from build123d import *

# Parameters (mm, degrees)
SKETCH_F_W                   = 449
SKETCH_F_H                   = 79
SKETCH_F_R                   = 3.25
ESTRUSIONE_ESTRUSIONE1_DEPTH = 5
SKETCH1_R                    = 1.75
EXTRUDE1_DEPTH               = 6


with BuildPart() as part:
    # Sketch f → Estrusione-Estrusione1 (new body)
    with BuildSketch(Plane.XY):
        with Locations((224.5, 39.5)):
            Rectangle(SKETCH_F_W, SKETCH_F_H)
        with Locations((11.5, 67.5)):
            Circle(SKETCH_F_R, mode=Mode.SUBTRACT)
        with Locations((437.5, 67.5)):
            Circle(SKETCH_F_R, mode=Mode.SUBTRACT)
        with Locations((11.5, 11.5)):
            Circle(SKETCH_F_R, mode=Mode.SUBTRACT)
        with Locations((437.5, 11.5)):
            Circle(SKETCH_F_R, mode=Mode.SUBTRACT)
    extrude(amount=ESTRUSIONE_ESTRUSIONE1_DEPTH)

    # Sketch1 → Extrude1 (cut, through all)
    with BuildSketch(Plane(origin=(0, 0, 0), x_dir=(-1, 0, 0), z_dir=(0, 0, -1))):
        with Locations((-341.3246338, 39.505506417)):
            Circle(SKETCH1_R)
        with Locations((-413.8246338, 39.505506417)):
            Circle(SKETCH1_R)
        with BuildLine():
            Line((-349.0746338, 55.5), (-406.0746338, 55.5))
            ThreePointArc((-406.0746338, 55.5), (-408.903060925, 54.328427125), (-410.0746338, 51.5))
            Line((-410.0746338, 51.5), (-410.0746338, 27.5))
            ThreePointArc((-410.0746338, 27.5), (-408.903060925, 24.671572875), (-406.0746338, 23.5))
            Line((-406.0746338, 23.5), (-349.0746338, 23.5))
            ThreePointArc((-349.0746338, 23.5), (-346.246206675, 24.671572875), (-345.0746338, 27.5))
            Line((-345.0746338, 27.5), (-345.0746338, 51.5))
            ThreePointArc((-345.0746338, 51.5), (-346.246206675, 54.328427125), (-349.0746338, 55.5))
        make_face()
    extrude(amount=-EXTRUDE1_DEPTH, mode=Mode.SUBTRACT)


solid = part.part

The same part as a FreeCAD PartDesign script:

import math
import FreeCAD as App
import Part
import Sketcher
Q = App.Units.Quantity

doc = App.newDocument("Part")
body = doc.addObject("PartDesign::Body", "Body")

sketch1 = body.newObject("Sketcher::SketchObject", "Sketch")
sketch1.AttachmentSupport = (doc.getObject("XY_Plane"), [""])
sketch1.MapMode = "FlatFace"
sketch1.addGeometry([
    Part.LineSegment(App.Vector(0, 79, 0), App.Vector(0, 0, 0)),
    Part.LineSegment(App.Vector(0, 0, 0), App.Vector(449, 0, 0)),
    Part.LineSegment(App.Vector(449, 0, 0), App.Vector(449, 79, 0)),
    Part.LineSegment(App.Vector(449, 79, 0), App.Vector(0, 79, 0)),
    Part.Circle(App.Vector(11.5, 11.5, 0), App.Vector(0, 0, 1), 3.2),
    Part.Circle(App.Vector(437.5, 11.5, 0), App.Vector(0, 0, 1), 3.2),
    Part.Circle(App.Vector(11.5, 67.5, 0), App.Vector(0, 0, 1), 3.2),
    Part.Circle(App.Vector(437.5, 67.5, 0), App.Vector(0, 0, 1), 3.2),
], False)
sketch1.addConstraint([
    Sketcher.Constraint("Coincident", 0, 2, 1, 1),
    Sketcher.Constraint("Coincident", 1, 2, 2, 1),
    Sketcher.Constraint("Coincident", 2, 2, 3, 1),
    Sketcher.Constraint("Coincident", 3, 2, 0, 1),
    Sketcher.Constraint("Vertical", 0),
    Sketcher.Constraint("Horizontal", 1),
    Sketcher.Constraint("Vertical", 2),
    Sketcher.Constraint("Horizontal", 3),
    Sketcher.Constraint("Coincident", 0, 2, -1, 1),
    Sketcher.Constraint("Equal", 4, 5),
    Sketcher.Constraint("Equal", 5, 6),
    Sketcher.Constraint("Equal", 6, 7),
    Sketcher.Constraint("Horizontal", 4, 3, 5, 3),
    Sketcher.Constraint("Horizontal", 6, 3, 7, 3),
    Sketcher.Constraint("Vertical", 4, 3, 6, 3),
    Sketcher.Constraint("Vertical", 5, 3, 7, 3),
    Sketcher.Constraint("Diameter", 4, Q("6.5 mm")),
    Sketcher.Constraint("DistanceX", 1, 1, 1, 2, Q("449 mm")),
    Sketcher.Constraint("DistanceY", 0, 2, 0, 1, Q("79 mm")),
    Sketcher.Constraint("DistanceX", 4, 3, 5, 3, Q("426 mm")),
    Sketcher.Constraint("DistanceY", 4, 3, 6, 3, Q("56 mm")),
    Sketcher.Constraint("DistanceX", -1, 1, 4, 3, Q("11.5 mm")),
    Sketcher.Constraint("DistanceY", -1, 1, 4, 3, Q("11.5 mm")),
])
pad1 = body.newObject("PartDesign::Pad", "Pad")
pad1.Profile = sketch1
pad1.Length = 5

sketch2 = body.newObject("Sketcher::SketchObject", "Sketch001")
sketch2.AttachmentSupport = (doc.getObject("XY_Plane"), [""])
sketch2.MapMode = "FlatFace"
sketch2.addGeometry([
    Part.Circle(App.Vector(341.3, 39.5, 0), App.Vector(0, 0, 1), 1.8),
    Part.Circle(App.Vector(413.8, 39.5, 0), App.Vector(0, 0, 1), 1.8),
    Part.LineSegment(App.Vector(349.1, 55.5, 0), App.Vector(406.1, 55.5, 0)),
    Part.ArcOfCircle(Part.Circle(App.Vector(406.1, 51.5, 0), App.Vector(0, 0, 1), 4), math.radians(0), math.radians(90)),
    Part.LineSegment(App.Vector(410.1, 51.5, 0), App.Vector(410.1, 27.5, 0)),
    Part.ArcOfCircle(Part.Circle(App.Vector(406.1, 27.5, 0), App.Vector(0, 0, 1), 4), math.radians(-90), math.radians(0)),
    Part.LineSegment(App.Vector(406.1, 23.5, 0), App.Vector(349.1, 23.5, 0)),
    Part.ArcOfCircle(Part.Circle(App.Vector(349.1, 27.5, 0), App.Vector(0, 0, 1), 4), math.radians(180), math.radians(270)),
    Part.LineSegment(App.Vector(345.1, 27.5, 0), App.Vector(345.1, 51.5, 0)),
    Part.ArcOfCircle(Part.Circle(App.Vector(349.1, 51.5, 0), App.Vector(0, 0, 1), 4), math.radians(90), math.radians(180)),
], False)
sketch2.addConstraint([
    Sketcher.Constraint("Tangent", 2, 2, 3, 2),
    Sketcher.Constraint("Tangent", 3, 1, 4, 1),
    Sketcher.Constraint("Tangent", 4, 2, 5, 2),
    Sketcher.Constraint("Tangent", 5, 1, 6, 1),
    Sketcher.Constraint("Tangent", 6, 2, 7, 2),
    Sketcher.Constraint("Tangent", 7, 1, 8, 1),
    Sketcher.Constraint("Tangent", 8, 2, 9, 2),
    Sketcher.Constraint("Tangent", 9, 1, 2, 1),
    Sketcher.Constraint("Horizontal", 2),
    Sketcher.Constraint("Vertical", 4),
    Sketcher.Constraint("Horizontal", 6),
    Sketcher.Constraint("Vertical", 8),
    Sketcher.Constraint("Equal", 0, 1),
    Sketcher.Constraint("Equal", 3, 5),
    Sketcher.Constraint("Equal", 5, 7),
    Sketcher.Constraint("Equal", 7, 9),
    Sketcher.Constraint("Horizontal", 0, 3, 1, 3),
    Sketcher.Constraint("Radius", 3, Q("4 mm")),
    Sketcher.Constraint("Diameter", 0, Q("3.5 mm")),
    Sketcher.Constraint("DistanceX", 2, 1, 2, 2, Q("57 mm")),
    Sketcher.Constraint("DistanceY", 4, 2, 4, 1, Q("24 mm")),
    Sketcher.Constraint("DistanceY", -1, 1, 3, 3, Q("51.5 mm")),
    Sketcher.Constraint("DistanceX", 0, 3, 1, 3, Q("72.5 mm")),
    Sketcher.Constraint("DistanceX", 3, 3, 1, 3, Q("7.75 mm")),
    Sketcher.Constraint("DistanceX", -1, 1, 0, 3, Q("341.324634 mm")),
    Sketcher.Constraint("DistanceY", -1, 1, 0, 3, Q("39.505506 mm")),
])
pocket1 = body.newObject("PartDesign::Pocket", "Pocket")
pocket1.Profile = sketch2
pocket1.Type = "ThroughAll"
pocket1.Reversed = True

doc.recompute()
